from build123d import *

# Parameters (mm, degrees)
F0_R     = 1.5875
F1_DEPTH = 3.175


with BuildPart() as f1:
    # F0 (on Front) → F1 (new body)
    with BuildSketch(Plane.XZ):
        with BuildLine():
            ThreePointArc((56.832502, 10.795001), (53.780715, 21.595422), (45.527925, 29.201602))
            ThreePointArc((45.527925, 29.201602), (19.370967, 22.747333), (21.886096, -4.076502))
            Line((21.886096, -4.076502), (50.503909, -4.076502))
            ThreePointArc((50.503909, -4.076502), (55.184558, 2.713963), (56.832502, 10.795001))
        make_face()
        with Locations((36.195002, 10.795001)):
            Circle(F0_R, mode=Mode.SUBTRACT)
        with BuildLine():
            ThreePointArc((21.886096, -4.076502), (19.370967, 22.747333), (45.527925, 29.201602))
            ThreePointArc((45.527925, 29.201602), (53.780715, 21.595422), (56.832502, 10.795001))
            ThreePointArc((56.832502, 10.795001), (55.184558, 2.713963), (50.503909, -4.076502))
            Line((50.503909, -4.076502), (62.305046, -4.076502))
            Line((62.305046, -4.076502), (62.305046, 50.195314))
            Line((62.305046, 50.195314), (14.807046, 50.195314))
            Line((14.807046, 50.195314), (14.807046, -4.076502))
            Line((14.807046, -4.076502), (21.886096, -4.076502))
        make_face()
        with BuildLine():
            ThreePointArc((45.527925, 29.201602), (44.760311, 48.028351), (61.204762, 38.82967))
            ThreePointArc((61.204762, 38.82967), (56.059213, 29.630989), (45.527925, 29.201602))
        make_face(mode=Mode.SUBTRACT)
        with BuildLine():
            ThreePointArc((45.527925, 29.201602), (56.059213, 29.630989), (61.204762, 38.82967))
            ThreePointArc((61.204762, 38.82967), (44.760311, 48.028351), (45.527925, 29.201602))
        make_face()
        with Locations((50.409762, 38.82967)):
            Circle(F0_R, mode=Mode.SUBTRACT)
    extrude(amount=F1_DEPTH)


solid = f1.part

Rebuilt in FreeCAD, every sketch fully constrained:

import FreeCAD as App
import Part
import Sketcher

V = App.Vector
Q = App.Units.Quantity

doc = App.newDocument("Part")
body = doc.addObject("PartDesign::Body", "Body")

# Sketch on XZ plane
sketch1 = doc.addObject("Sketcher::SketchObject", "Sketch")
body.addObject(sketch1)
sketch1.AttachmentSupport = (doc.XZ_Plane, [""])
sketch1.MapMode = "FlatFace"
sketch1.addGeometry([
    Part.LineSegment(V(62.3, -4.1, 0), V(62.3, 50.2, 0)),  # 0
    Part.LineSegment(V(62.3, 50.2, 0), V(14.8, 50.2, 0)),  # 1
    Part.LineSegment(V(14.8, 50.2, 0), V(14.8, -4.1, 0)),  # 2
    Part.LineSegment(V(14.8, -4.1, 0), V(62.3, -4.1, 0)),  # 3
    Part.Circle(V(36.2, 10.8, 0), V(0, 0, 1), 1.6),  # 4
    Part.Circle(V(50.4, 38.8, 0), V(0, 0, 1), 1.6),  # 5
], False)
sketch1.addConstraint([
    Sketcher.Constraint("Coincident", 0, 2, 1, 1),
    Sketcher.Constraint("Coincident", 1, 2, 2, 1),
    Sketcher.Constraint("Coincident", 2, 2, 3, 1),
    Sketcher.Constraint("Coincident", 3, 2, 0, 1),
    Sketcher.Constraint("Vertical", 0),
    Sketcher.Constraint("Horizontal", 1),
    Sketcher.Constraint("Vertical", 2),
    Sketcher.Constraint("Horizontal", 3),
    Sketcher.Constraint("Equal", 4, 5),
    Sketcher.Constraint("Diameter", 4, Q("0.125 in")),
    Sketcher.Constraint("DistanceX", 1, 2, 1, 1, Q("1.87 in")),
    Sketcher.Constraint("DistanceX", -1, 1, 4, 3, Q("1.4250001 in")),
    Sketcher.Constraint("DistanceY", -1, 1, 4, 3, Q("0.425 in")),
    Sketcher.Constraint("DistanceY", 2, 2, -1, 1, Q("4.076502 mm")),
    Sketcher.Constraint("DistanceY", 0, 1, 0, 2, Q("54.271816 mm")),
    Sketcher.Constraint("DistanceY", -1, 1, 5, 3, Q("38.82967 mm")),
    Sketcher.Constraint("DistanceX", 4, 3, 5, 3, Q("14.21476 mm")),
    Sketcher.Constraint("DistanceX", -1, 1, 0, 2, Q("62.305046 mm")),
])
pad1 = doc.addObject("PartDesign::Pad", "Pad")
body.addObject(pad1)
pad1.Profile = sketch1
pad1.Length = Q("0.125 in")

doc.recompute()
